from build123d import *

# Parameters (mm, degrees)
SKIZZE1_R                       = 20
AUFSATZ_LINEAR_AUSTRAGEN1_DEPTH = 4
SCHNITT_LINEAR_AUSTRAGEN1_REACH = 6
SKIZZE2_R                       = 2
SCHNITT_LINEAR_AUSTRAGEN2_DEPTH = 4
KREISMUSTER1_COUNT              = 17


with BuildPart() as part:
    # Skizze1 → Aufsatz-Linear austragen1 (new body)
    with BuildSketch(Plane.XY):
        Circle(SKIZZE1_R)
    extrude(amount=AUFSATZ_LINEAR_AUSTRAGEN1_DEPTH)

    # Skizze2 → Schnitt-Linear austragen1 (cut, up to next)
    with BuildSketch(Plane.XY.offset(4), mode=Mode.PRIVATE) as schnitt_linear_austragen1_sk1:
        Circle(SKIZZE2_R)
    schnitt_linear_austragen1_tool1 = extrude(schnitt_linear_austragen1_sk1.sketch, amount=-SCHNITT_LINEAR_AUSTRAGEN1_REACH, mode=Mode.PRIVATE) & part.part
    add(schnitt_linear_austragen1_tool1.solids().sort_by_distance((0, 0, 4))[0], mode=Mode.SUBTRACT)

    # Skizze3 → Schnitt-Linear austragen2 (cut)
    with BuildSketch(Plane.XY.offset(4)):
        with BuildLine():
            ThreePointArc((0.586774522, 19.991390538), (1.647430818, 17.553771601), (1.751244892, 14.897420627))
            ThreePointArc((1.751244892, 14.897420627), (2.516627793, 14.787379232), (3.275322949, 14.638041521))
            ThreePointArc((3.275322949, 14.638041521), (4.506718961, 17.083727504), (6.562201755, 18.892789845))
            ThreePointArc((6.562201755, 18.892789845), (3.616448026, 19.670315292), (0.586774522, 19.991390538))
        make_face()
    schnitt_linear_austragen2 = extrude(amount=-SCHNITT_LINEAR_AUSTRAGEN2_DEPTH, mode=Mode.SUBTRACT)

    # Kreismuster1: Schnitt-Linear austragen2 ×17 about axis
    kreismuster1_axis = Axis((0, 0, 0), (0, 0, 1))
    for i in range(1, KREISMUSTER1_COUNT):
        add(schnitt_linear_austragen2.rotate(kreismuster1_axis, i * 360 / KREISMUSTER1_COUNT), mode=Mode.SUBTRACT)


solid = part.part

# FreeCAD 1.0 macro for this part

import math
import FreeCAD as App
import Part
import Sketcher

V = App.Vector

doc = App.newDocument("Part")
body = doc.addObject("PartDesign::Body", "Body")

sketch1 = body.newObject("Sketcher::SketchObject", "Sketch")
sketch1.AttachmentSupport = (doc.getObject("XY_Plane"), [""])
sketch1.MapMode = "FlatFace"
sketch1.addGeometry(Part.Circle(V(0, 0, 0), V(0, 0, 1), 20), False)
sketch1.addConstraint([
    Sketcher.Constraint("Coincident", 0, 3, -1, 1),
    Sketcher.Constraint("Diameter", 0, 40.0),
])
pad1 = body.newObject("PartDesign::Pad", "Pad")
pad1.Profile = sketch1
pad1.Length = 4

sketch2 = body.newObject("Sketcher::SketchObject", "Sketch001")
sketch2.AttachmentSupport = (doc.getObject("XY_Plane"), [""])
sketch2.MapMode = "FlatFace"
sketch2.AttachmentOffset = App.Placement(V(0, 0, 4), App.Rotation())
sketch2.addGeometry(Part.Circle(V(0, 0, 0), V(0, 0, 1), 2), False)
sketch2.addConstraint([
    Sketcher.Constraint("Coincident", 0, 3, -1, 1),
    Sketcher.Constraint("Diameter", 0, 4.0),
])
pocket1 = body.newObject("PartDesign::Pocket", "Pocket")
pocket1.Profile = sketch2
pocket1.Type = "UpToFirst"

sketch3 = body.newObject("Sketcher::SketchObject", "Sketch002")
sketch3.AttachmentSupport = (doc.getObject("XY_Plane"), [""])
sketch3.MapMode = "FlatFace"
sketch3.AttachmentOffset = App.Placement(V(0, 0, 4), App.Rotation())
sketch3.addGeometry([
    Part.ArcOfCircle(Part.Circle(V(-5.4, 15.9, 0), V(0, 0, 1), 7.2), math.radians(-8), math.radians(34)),
    Part.ArcOfCircle(Part.Circle(V(0, 0, 0), V(0, 0, 1), 15), math.radians(77.39), math.radians(83.3)),
    Part.ArcOfCircle(Part.Circle(V(10.2, 12.7, 0), V(0, 0, 1), 7.2), math.radians(120), math.radians(164)),
    Part.ArcOfCircle(Part.Circle(V(0, 0, 0), V(0, 0, 1), 20), math.radians(70.85), math.radians(88.32)),
], False)
sketch3.addConstraint([
    Sketcher.Constraint("Coincident", 0, 1, 1, 2),
    Sketcher.Constraint("Coincident", 1, 1, 2, 2),
    Sketcher.Constraint("Coincident", 2, 1, 3, 1),
    Sketcher.Constraint("Coincident", 3, 2, 0, 2),
    Sketcher.Constraint("Coincident", 1, 3, -1, 1),
    Sketcher.Constraint("Coincident", 3, 3, -1, 1),
    Sketcher.Constraint("Equal", 0, 2),
    Sketcher.Constraint("Radius", 1, 15.0),
    Sketcher.Constraint("Radius", 3, 20.0),
    Sketcher.Constraint("Radius", 0, 7.2),
    Sketcher.Constraint("DistanceX", -1, 1, 2, 1, 6.562202),
    Sketcher.Constraint("DistanceY", 2, 1, 3, 2, 1.098601),
    Sketcher.Constraint("DistanceX", 0, 3, -1, 1, 5.37151),
    Sketcher.Constraint("DistanceX", -1, 1, 2, 3, 10.204542),
])
pocket2 = body.newObject("PartDesign::Pocket", "Pocket001")
pocket2.Profile = sketch3
pocket2.Length = 4
doc.recompute()

polarpattern = body.newObject("PartDesign::PolarPattern", "PolarPattern")
polarpattern.Originals = [pocket2]
polarpattern.Axis = (doc.getObject("Z_Axis"), [""])
polarpattern.Angle = 360
polarpattern.Occurrences = 17
body.Tip = polarpattern

doc.recompute()
